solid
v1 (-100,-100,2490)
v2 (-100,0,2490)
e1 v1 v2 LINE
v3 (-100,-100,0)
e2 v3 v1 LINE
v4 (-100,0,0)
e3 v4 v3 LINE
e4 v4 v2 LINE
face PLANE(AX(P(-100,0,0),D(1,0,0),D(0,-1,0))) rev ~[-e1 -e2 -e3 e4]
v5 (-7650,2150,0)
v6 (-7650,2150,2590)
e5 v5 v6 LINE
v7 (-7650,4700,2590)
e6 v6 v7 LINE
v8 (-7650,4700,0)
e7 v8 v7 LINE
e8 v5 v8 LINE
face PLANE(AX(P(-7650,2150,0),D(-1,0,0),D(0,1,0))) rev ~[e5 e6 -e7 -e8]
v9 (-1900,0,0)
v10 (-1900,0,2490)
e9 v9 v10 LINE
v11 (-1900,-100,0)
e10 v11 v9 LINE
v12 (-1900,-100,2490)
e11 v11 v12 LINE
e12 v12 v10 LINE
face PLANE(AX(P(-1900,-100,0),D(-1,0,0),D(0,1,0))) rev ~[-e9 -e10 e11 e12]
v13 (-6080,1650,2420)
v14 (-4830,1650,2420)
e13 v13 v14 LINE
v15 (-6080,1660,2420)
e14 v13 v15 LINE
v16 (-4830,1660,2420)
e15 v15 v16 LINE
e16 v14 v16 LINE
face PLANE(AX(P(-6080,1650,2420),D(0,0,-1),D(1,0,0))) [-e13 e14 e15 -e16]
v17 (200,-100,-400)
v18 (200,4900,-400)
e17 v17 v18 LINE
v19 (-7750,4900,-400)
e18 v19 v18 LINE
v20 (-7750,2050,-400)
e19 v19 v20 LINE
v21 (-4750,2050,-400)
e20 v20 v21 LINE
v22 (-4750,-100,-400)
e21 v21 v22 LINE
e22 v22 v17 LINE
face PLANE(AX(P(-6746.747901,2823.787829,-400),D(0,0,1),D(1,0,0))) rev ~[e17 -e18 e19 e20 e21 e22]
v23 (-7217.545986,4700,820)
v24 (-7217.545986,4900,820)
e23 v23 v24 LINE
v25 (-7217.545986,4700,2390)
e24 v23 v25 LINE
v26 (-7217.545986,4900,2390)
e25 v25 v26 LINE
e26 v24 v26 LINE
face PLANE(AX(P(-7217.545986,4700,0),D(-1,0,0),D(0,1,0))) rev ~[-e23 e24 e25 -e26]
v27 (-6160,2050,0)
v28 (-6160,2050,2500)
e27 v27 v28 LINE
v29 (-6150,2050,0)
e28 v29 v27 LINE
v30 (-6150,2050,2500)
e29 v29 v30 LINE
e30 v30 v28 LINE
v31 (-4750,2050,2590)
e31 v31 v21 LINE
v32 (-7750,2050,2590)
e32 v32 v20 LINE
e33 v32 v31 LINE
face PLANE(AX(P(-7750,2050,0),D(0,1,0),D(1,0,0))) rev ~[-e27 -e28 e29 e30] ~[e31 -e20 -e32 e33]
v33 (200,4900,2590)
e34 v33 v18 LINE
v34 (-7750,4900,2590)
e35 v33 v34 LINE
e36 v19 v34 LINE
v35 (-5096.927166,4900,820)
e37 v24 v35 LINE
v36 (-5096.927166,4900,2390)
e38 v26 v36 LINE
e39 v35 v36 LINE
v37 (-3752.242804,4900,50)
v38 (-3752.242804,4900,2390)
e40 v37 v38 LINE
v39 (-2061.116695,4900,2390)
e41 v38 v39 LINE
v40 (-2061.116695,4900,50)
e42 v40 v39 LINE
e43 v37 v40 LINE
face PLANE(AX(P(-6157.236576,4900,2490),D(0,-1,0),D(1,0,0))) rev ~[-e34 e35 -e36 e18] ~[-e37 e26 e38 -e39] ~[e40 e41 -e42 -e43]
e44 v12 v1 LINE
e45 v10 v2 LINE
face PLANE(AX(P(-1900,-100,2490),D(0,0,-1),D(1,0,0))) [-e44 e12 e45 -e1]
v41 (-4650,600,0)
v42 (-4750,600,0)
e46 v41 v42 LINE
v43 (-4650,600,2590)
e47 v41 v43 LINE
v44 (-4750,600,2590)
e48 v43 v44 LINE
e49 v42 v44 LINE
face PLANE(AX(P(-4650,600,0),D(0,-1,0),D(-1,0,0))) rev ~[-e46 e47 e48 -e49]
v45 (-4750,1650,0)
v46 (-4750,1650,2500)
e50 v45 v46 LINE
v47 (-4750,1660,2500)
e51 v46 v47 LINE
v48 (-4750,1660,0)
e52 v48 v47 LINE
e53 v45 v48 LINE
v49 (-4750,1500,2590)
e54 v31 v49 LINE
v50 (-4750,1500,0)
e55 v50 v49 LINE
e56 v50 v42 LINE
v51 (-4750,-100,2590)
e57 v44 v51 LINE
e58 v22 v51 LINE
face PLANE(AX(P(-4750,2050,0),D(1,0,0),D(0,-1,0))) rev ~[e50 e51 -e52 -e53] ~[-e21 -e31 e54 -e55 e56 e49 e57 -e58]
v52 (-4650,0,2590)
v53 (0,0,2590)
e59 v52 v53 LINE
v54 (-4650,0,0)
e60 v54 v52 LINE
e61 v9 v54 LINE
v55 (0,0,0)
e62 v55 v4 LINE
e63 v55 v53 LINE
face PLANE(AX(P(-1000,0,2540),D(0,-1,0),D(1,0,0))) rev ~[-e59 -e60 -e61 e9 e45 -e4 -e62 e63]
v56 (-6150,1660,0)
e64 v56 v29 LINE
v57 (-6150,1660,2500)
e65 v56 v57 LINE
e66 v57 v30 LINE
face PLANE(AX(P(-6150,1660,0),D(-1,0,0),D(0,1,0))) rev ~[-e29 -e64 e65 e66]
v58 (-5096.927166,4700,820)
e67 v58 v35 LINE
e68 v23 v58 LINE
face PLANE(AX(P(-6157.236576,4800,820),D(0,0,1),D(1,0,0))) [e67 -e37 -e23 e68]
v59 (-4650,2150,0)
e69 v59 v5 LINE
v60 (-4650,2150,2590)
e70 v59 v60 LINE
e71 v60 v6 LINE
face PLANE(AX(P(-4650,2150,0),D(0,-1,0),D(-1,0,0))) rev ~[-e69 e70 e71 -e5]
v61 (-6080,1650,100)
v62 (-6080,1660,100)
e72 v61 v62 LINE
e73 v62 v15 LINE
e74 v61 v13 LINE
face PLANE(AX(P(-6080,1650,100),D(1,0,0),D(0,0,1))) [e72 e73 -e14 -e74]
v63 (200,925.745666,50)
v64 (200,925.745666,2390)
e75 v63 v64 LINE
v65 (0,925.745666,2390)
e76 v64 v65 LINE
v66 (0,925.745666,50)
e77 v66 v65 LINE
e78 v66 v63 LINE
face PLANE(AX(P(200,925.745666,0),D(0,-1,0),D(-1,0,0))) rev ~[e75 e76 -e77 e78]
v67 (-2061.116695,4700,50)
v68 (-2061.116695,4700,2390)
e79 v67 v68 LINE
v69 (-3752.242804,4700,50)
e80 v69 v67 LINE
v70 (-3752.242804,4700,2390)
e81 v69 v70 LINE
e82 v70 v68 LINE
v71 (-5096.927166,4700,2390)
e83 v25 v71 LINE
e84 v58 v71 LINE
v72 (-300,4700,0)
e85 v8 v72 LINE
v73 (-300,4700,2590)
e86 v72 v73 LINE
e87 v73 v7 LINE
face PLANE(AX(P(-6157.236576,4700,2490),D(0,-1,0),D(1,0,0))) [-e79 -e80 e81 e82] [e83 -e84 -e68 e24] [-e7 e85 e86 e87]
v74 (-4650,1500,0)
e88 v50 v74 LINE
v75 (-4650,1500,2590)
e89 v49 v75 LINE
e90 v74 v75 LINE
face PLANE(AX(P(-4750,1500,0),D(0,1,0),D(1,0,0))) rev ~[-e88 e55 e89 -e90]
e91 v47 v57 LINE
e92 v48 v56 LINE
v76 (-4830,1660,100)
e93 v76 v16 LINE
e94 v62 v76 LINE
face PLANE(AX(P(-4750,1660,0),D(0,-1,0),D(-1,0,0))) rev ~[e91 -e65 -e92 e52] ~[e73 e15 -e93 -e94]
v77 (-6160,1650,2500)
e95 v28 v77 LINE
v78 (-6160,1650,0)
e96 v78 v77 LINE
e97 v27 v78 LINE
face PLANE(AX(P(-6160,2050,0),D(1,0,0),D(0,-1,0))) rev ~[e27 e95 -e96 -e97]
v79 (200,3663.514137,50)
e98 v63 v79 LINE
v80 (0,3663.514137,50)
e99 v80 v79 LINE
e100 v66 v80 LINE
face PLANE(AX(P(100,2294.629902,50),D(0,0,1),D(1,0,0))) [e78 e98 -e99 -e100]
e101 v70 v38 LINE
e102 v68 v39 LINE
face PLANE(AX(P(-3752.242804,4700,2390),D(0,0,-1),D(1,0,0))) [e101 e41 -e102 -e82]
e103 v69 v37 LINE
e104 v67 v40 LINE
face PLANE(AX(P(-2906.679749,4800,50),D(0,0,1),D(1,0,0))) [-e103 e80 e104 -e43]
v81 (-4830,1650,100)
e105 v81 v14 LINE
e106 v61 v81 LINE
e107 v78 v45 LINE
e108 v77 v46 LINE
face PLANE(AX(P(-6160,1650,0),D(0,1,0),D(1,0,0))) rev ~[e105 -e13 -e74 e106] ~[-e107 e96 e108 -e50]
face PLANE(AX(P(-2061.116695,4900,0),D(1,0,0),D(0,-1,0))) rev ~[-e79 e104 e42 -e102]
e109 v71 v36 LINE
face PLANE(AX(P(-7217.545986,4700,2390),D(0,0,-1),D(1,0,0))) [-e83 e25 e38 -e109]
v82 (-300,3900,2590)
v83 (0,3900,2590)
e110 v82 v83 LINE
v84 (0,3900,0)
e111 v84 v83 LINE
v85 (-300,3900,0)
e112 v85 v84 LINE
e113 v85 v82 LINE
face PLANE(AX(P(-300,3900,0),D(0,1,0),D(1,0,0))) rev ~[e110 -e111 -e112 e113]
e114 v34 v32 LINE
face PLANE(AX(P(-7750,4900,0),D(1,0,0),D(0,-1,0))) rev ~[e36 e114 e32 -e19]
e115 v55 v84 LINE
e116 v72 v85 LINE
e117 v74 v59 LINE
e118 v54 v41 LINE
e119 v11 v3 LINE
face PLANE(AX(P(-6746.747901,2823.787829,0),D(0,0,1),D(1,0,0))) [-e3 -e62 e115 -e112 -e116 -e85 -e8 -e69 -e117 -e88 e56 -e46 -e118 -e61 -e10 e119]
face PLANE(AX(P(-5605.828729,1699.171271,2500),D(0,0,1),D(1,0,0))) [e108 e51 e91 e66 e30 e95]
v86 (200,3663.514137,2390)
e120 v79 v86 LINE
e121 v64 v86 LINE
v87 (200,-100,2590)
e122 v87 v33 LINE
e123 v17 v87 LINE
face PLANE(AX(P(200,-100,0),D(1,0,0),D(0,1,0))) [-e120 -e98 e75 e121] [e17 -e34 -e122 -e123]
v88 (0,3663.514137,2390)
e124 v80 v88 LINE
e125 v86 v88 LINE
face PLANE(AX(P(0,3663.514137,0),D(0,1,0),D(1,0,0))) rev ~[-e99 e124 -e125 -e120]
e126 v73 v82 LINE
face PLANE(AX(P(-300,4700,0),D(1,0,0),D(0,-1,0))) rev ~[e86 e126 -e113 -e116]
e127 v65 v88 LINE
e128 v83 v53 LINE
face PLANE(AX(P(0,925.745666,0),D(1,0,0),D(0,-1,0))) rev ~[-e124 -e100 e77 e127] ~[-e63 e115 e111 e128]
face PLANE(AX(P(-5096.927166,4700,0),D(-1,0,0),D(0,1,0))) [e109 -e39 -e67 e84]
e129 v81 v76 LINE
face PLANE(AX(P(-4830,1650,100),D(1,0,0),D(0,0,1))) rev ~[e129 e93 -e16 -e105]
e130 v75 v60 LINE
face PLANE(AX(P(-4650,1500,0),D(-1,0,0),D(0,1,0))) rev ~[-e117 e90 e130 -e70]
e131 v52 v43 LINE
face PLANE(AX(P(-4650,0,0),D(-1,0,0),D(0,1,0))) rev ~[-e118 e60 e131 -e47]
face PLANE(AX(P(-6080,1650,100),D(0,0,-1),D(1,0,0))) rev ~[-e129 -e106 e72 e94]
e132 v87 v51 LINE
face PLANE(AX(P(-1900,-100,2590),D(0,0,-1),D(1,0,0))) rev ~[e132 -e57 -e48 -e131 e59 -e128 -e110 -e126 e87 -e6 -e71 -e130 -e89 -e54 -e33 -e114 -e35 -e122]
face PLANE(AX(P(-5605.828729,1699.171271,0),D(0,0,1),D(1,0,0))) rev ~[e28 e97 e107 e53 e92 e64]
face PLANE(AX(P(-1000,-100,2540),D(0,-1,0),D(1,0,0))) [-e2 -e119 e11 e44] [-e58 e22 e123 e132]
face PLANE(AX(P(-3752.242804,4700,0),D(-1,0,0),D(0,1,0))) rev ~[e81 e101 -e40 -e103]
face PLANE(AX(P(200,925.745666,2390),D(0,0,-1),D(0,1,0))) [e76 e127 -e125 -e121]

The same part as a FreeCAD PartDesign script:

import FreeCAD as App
import Part
import Sketcher

V = App.Vector
Q = App.Units.Quantity

doc = App.newDocument("Part")
body = doc.addObject("PartDesign::Body", "Body")

# Sketch on XY plane
sketch1 = body.newObject("Sketcher::SketchObject", "Sketch")
sketch1.AttachmentSupport = (doc.getObject("XY_Plane"), [""])
sketch1.MapMode = "FlatFace"
sketch1.addGeometry([
    Part.LineSegment(V(200, -100, 0), V(200, 4900, 0)),  # 0
    Part.LineSegment(V(200, 4900, 0), V(-7750, 4900, 0)),  # 1
    Part.LineSegment(V(-7750, 4900, 0), V(-7750, 2050, 0)),  # 2
    Part.LineSegment(V(-7750, 2050, 0), V(-4750, 2050, 0)),  # 3
    Part.LineSegment(V(-4750, 2050, 0), V(-4750, -100, 0)),  # 4
    Part.LineSegment(V(-4750, -100, 0), V(200, -100, 0)),  # 5
], False)
sketch1.addConstraint([
    Sketcher.Constraint("Coincident", 0, 2, 1, 1),
    Sketcher.Constraint("Coincident", 1, 2, 2, 1),
    Sketcher.Constraint("Coincident", 2, 2, 3, 1),
    Sketcher.Constraint("Coincident", 3, 2, 4, 1),
    Sketcher.Constraint("Coincident", 4, 2, 5, 1),
    Sketcher.Constraint("Coincident", 5, 2, 0, 1),
    Sketcher.Constraint("Vertical", 0),
    Sketcher.Constraint("Horizontal", 1),
    Sketcher.Constraint("Vertical", 2),
    Sketcher.Constraint("Horizontal", 3),
    Sketcher.Constraint("Vertical", 4),
    Sketcher.Constraint("Horizontal", 5),
    Sketcher.Constraint("DistanceX", 1, 2, 1, 1, Q("7950 mm")),
    Sketcher.Constraint("DistanceX", 3, 1, 3, 2, Q("3000 mm")),
    Sketcher.Constraint("DistanceY", 0, 1, 0, 2, Q("5000 mm")),
    Sketcher.Constraint("DistanceY", 2, 2, 2, 1, Q("2850 mm")),
    Sketcher.Constraint("DistanceX", -1, 1, 0, 2, Q("200 mm")),
    Sketcher.Constraint("DistanceY", -1, 1, 0, 2, Q("4900 mm")),
])
pad1 = body.newObject("PartDesign::Pad", "Pad")
pad1.Profile = sketch1
pad1.Length = 400
pad1.Reversed = True

# Sketch on XY plane
sketch2 = body.newObject("Sketcher::SketchObject", "Sketch001")
sketch2.AttachmentSupport = (doc.getObject("XY_Plane"), [""])
sketch2.MapMode = "FlatFace"
sketch2.addGeometry([
    Part.LineSegment(V(-4750, 1500, 0), V(-4650, 1500, 0)),  # 0
    Part.LineSegment(V(-4650, 1500, 0), V(-4650, 2150, 0)),  # 1
    Part.LineSegment(V(-4650, 2150, 0), V(-7650, 2150, 0)),  # 2
    Part.LineSegment(V(-7650, 2150, 0), V(-7650, 4700, 0)),  # 3
    Part.LineSegment(V(-7650, 4700, 0), V(-7217.545986, 4700, 0)),  # 4
    Part.LineSegment(V(-7217.545986, 4700, 0), V(-7217.545986, 4900, 0)),  # 5
    Part.LineSegment(V(-7217.545986, 4900, 0), V(-7750, 4900, 0)),  # 6
    Part.LineSegment(V(-7750, 4900, 0), V(-7750, 2050, 0)),  # 7
    Part.LineSegment(V(-7750, 2050, 0), V(-4750, 2050, 0)),  # 8
    Part.LineSegment(V(-4750, 2050, 0), V(-4750, 1500, 0)),  # 9
    Part.LineSegment(V(-5096.927166, 4900, 0), V(-5096.927166, 4700, 0)),  # 10
    Part.LineSegment(V(-5096.927166, 4700, 0), V(-3752.242804, 4700, 0)),  # 11
    Part.LineSegment(V(-3752.242804, 4700, 0), V(-3752.242804, 4900, 0)),  # 12
    Part.LineSegment(V(-3752.242804, 4900, 0), V(-5096.927166, 4900, 0)),  # 13
    Part.LineSegment(V(0, 3900, 0), V(0, 3663.514137, 0)),  # 14
    Part.LineSegment(V(0, 3663.514137, 0), V(200, 3663.514137, 0)),  # 15
    Part.LineSegment(V(200, 3663.514137, 0), V(200, 4900, 0)),  # 16
    Part.LineSegment(V(200, 4900, 0), V(-2061.116695, 4900, 0)),  # 17
    Part.LineSegment(V(-2061.116695, 4900, 0), V(-2061.116695, 4700, 0)),  # 18
    Part.LineSegment(V(-2061.116695, 4700, 0), V(-300, 4700, 0)),  # 19
    Part.LineSegment(V(-300, 4700, 0), V(-300, 3900, 0)),  # 20
    Part.LineSegment(V(-300, 3900, 0), V(0, 3900, 0)),  # 21
    Part.LineSegment(V(0, 925.745666, 0), V(0, 0, 0)),  # 22
    Part.LineSegment(V(0, 0, 0), V(-100, 0, 0)),  # 23
    Part.LineSegment(V(-100, 0, 0), V(-100, -100, 0)),  # 24
    Part.LineSegment(V(-100, -100, 0), V(200, -100, 0)),  # 25
    Part.LineSegment(V(200, -100, 0), V(200, 925.745666, 0)),  # 26
    Part.LineSegment(V(200, 925.745666, 0), V(0, 925.745666, 0)),  # 27
    Part.LineSegment(V(-1900, -100, 0), V(-1900, 0, 0)),  # 28
    Part.LineSegment(V(-1900, 0, 0), V(-4650, 0, 0)),  # 29
    Part.LineSegment(V(-4650, 0, 0), V(-4650, 600, 0)),  # 30
    Part.LineSegment(V(-4650, 600, 0), V(-4750, 600, 0)),  # 31
    Part.LineSegment(V(-4750, 600, 0), V(-4750, -100, 0)),  # 32
    Part.LineSegment(V(-4750, -100, 0), V(-1900, -100, 0)),  # 33
], False)
sketch2.addConstraint([
    Sketcher.Constraint("Coincident", 0, 2, 1, 1),
    Sketcher.Constraint("Coincident", 1, 2, 2, 1),
    Sketcher.Constraint("Coincident", 2, 2, 3, 1),
    Sketcher.Constraint("Coincident", 3, 2, 4, 1),
    Sketcher.Constraint("Coincident", 4, 2, 5, 1),
    Sketcher.Constraint("Coincident", 5, 2, 6, 1),
    Sketcher.Constraint("Coincident", 6, 2, 7, 1),
    Sketcher.Constraint("Coincident", 7, 2, 8, 1),
    Sketcher.Constraint("Coincident", 8, 2, 9, 1),
    Sketcher.Constraint("Coincident", 9, 2, 0, 1),
    Sketcher.Constraint("Coincident", 10, 2, 11, 1),
    Sketcher.Constraint("Coincident", 11, 2, 12, 1),
    Sketcher.Constraint("Coincident", 12, 2, 13, 1),
    Sketcher.Constraint("Coincident", 13, 2, 10, 1),
    Sketcher.Constraint("Coincident", 14, 2, 15, 1),
    Sketcher.Constraint("Coincident", 15, 2, 16, 1),
    Sketcher.Constraint("Coincident", 16, 2, 17, 1),
    Sketcher.Constraint("Coincident", 17, 2, 18, 1),
    Sketcher.Constraint("Coincident", 18, 2, 19, 1),
    Sketcher.Constraint("Coincident", 19, 2, 20, 1),
    Sketcher.Constraint("Coincident", 20, 2, 21, 1),
    Sketcher.Constraint("Coincident", 21, 2, 14, 1),
    Sketcher.Constraint("Coincident", 22, 2, 23, 1),
    Sketcher.Constraint("Coincident", 23, 2, 24, 1),
    Sketcher.Constraint("Coincident", 24, 2, 25, 1),
    Sketcher.Constraint("Coincident", 25, 2, 26, 1),
    Sketcher.Constraint("Coincident", 26, 2, 27, 1),
    Sketcher.Constraint("Coincident", 27, 2, 22, 1),
    Sketcher.Constraint("Coincident", 28, 2, 29, 1),
    Sketcher.Constraint("Coincident", 29, 2, 30, 1),
    Sketcher.Constraint("Coincident", 30, 2, 31, 1),
    Sketcher.Constraint("Coincident", 31, 2, 32, 1),
    Sketcher.Constraint("Coincident", 32, 2, 33, 1),
    Sketcher.Constraint("Coincident", 33, 2, 28, 1),
    Sketcher.Constraint("Horizontal", 0),
    Sketcher.Constraint("Vertical", 1),
    Sketcher.Constraint("Horizontal", 2),
    Sketcher.Constraint("Vertical", 3),
    Sketcher.Constraint("Horizontal", 4),
    Sketcher.Constraint("Vertical", 5),
    Sketcher.Constraint("Horizontal", 6),
    Sketcher.Constraint("Vertical", 7),
    Sketcher.Constraint("Horizontal", 8),
    Sketcher.Constraint("Vertical", 9),
    Sketcher.Constraint("Vertical", 10),
    Sketcher.Constraint("Horizontal", 11),
    Sketcher.Constraint("Vertical", 12),
    Sketcher.Constraint("Horizontal", 13),
    Sketcher.Constraint("Vertical", 14),
    Sketcher.Constraint("Horizontal", 15),
    Sketcher.Constraint("Vertical", 16),
    Sketcher.Constraint("Horizontal", 17),
    Sketcher.Constraint("Vertical", 18),
    Sketcher.Constraint("Horizontal", 19),
    Sketcher.Constraint("Vertical", 20),
    Sketcher.Constraint("Horizontal", 21),
    Sketcher.Constraint("Vertical", 22),
    Sketcher.Constraint("Horizontal", 23),
    Sketcher.Constraint("Vertical", 24),
    Sketcher.Constraint("Horizontal", 25),
    Sketcher.Constraint("Vertical", 26),
    Sketcher.Constraint("Horizontal", 27),
    Sketcher.Constraint("Vertical", 28),
    Sketcher.Constraint("Horizontal", 29),
    Sketcher.Constraint("Vertical", 30),
    Sketcher.Constraint("Horizontal", 31),
    Sketcher.Constraint("Vertical", 32),
    Sketcher.Constraint("Horizontal", 33),
    Sketcher.Constraint("Coincident", 22, 2, -1, 1),
    Sketcher.Constraint("PointOnObject", 14, 2, -2),
    Sketcher.Constraint("PointOnObject", 28, 2, -1),
    Sketcher.Constraint("Horizontal", 4, 2, 10, 2),
    Sketcher.Constraint("Horizontal", 6, 2, 12, 2),
    Sketcher.Constraint("Horizontal", 13, 2, 16, 2),
    Sketcher.Constraint("Horizontal", 11, 2, 18, 2),
    Sketcher.Constraint("Horizontal", 25, 2, 32, 2),
    Sketcher.Constraint("Vertical", 16, 2, 25, 2),
    Sketcher.Constraint("Vertical", 1, 2, 29, 2),
    Sketcher.Constraint("Vertical", 9, 2, 31, 2),
    Sketcher.Constraint("Equal", 2, 8),
    Sketcher.Constraint("Equal", 0, 23),
    Sketcher.Constraint("Equal", 21, 25),
    Sketcher.Constraint("Equal", 27, 5),
    Sketcher.Constraint("Equal", 33, 7),
    Sketcher.Constraint("Equal", 31, 24),
    Sketcher.Constraint("DistanceX", 0, 1, 0, 2, Q("100 mm")),
    Sketcher.Constraint("DistanceX", 2, 2, 2, 1, Q("3000 mm")),
    Sketcher.Constraint("DistanceX", 15, 1, 15, 2, Q("200 mm")),
    Sketcher.Constraint("DistanceX", 29, 2, 29, 1, Q("2750 mm")),
    Sketcher.Constraint("DistanceY", 1, 1, 1, 2, Q("650 mm")),
    Sketcher.Constraint("DistanceY", 3, 1, 3, 2, Q("2550 mm")),
    Sketcher.Constraint("DistanceY", 20, 2, 20, 1, Q("800 mm")),
    Sketcher.Constraint("DistanceY", 30, 1, 30, 2, Q("600 mm")),
    Sketcher.Constraint("DistanceX", 0, 2, -1, 1, Q("4650 mm")),
    Sketcher.Constraint("DistanceY", -1, 1, 0, 2, Q("1500 mm")),
    Sketcher.Constraint("DistanceX", 4, 1, 4, 2, Q("432.454014 mm")),
    Sketcher.Constraint("DistanceX", 11, 1, 11, 2, Q("1344.684362 mm")),
    Sketcher.Constraint("DistanceX", 17, 2, 17, 1, Q("2261.116695 mm")),
    Sketcher.Constraint("DistanceY", 14, 2, 14, 1, Q("236.485863 mm")),
    Sketcher.Constraint("DistanceY", 22, 2, 22, 1, Q("925.745666 mm")),
    Sketcher.Constraint("DistanceX", 4, 2, 10, 2, Q("2120.61882 mm")),
])
pad2 = body.newObject("PartDesign::Pad", "Pad001")
pad2.Profile = sketch2
pad2.Length = 2590

# Sketch on XY plane
sketch3 = body.newObject("Sketcher::SketchObject", "Sketch002")
sketch3.AttachmentSupport = (doc.getObject("XY_Plane"), [""])
sketch3.MapMode = "FlatFace"
sketch3.addGeometry([
    Part.LineSegment(V(-3752.242804, 4900, 0), V(-3752.242804, 4700, 0)),  # 0
    Part.LineSegment(V(-3752.242804, 4700, 0), V(-2061.116695, 4700, 0)),  # 1
    Part.LineSegment(V(-2061.116695, 4700, 0), V(-2061.116695, 4900, 0)),  # 2
    Part.LineSegment(V(-2061.116695, 4900, 0), V(-3752.242804, 4900, 0)),  # 3
    Part.LineSegment(V(0, 3663.514137, 0), V(0, 925.745666, 0)),  # 4
    Part.LineSegment(V(0, 925.745666, 0), V(200, 925.745666, 0)),  # 5
    Part.LineSegment(V(200, 925.745666, 0), V(200, 3663.514137, 0)),  # 6
    Part.LineSegment(V(200, 3663.514137, 0), V(0, 3663.514137, 0)),  # 7
], False)
sketch3.addConstraint([
    Sketcher.Constraint("Coincident", 0, 2, 1, 1),
    Sketcher.Constraint("Coincident", 1, 2, 2, 1),
    Sketcher.Constraint("Coincident", 2, 2, 3, 1),
    Sketcher.Constraint("Coincident", 3, 2, 0, 1),
    Sketcher.Constraint("Coincident", 4, 2, 5, 1),
    Sketcher.Constraint("Coincident", 5, 2, 6, 1),
    Sketcher.Constraint("Coincident", 6, 2, 7, 1),
    Sketcher.Constraint("Coincident", 7, 2, 4, 1),
    Sketcher.Constraint("Vertical", 0),
    Sketcher.Constraint("Horizontal", 1),
    Sketcher.Constraint("Vertical", 2),
    Sketcher.Constraint("Horizontal", 3),
    Sketcher.Constraint("Vertical", 4),
    Sketcher.Constraint("Horizontal", 5),
    Sketcher.Constraint("Vertical", 6),
    Sketcher.Constraint("Horizontal", 7),
    Sketcher.Constraint("PointOnObject", 4, 2, -2),
    Sketcher.Constraint("Equal", 7, 0),
    Sketcher.Constraint("DistanceX", 5, 1, 5, 2, Q("200 mm")),
    Sketcher.Constraint("DistanceY", -1, 1, 0, 2, Q("4700 mm")),
    Sketcher.Constraint("DistanceX", 1, 1, 1, 2, Q("1691.126108 mm")),
    Sketcher.Constraint("DistanceY", 4, 2, 4, 1, Q("2737.768471 mm")),
    Sketcher.Constraint("DistanceX", 0, 2, -1, 1, Q("3752.242804 mm")),
    Sketcher.Constraint("DistanceY", -1, 1, 4, 2, Q("925.745666 mm")),
])
pad3 = body.newObject("PartDesign::Pad", "Pad002")
pad3.Profile = sketch3
pad3.Length = 50

# Sketch on XY plane
sketch4 = body.newObject("Sketcher::SketchObject", "Sketch003")
sketch4.AttachmentSupport = (doc.getObject("XY_Plane"), [""])
sketch4.MapMode = "FlatFace"
sketch4.addGeometry([
    Part.LineSegment(V(-7217.545986, 4900, 0), V(-7217.545986, 4700, 0)),
    Part.LineSegment(V(-7217.545986, 4700, 0), V(-5096.927166, 4700, 0)),
    Part.LineSegment(V(-5096.927166, 4700, 0), V(-5096.927166, 4900, 0)),
    Part.LineSegment(V(-5096.927166, 4900, 0), V(-7217.545986, 4900, 0)),
], False)
sketch4.addConstraint([
    Sketcher.Constraint("Coincident", 0, 2, 1, 1),
    Sketcher.Constraint("Coincident", 1, 2, 2, 1),
    Sketcher.Constraint("Coincident", 2, 2, 3, 1),
    Sketcher.Constraint("Coincident", 3, 2, 0, 1),
    Sketcher.Constraint("Vertical", 0),
    Sketcher.Constraint("Horizontal", 1),
    Sketcher.Constraint("Vertical", 2),
    Sketcher.Constraint("Horizontal", 3),
    Sketcher.Constraint("DistanceY", 0, 2, 0, 1, Q("200 mm")),
    Sketcher.Constraint("DistanceY", -1, 1, 0, 2, Q("4700 mm")),
    Sketcher.Constraint("DistanceX", 1, 1, 1, 2, Q("2120.61882 mm")),
    Sketcher.Constraint("DistanceX", 0, 2, -1, 1, Q("7217.545986 mm")),
])
pad4 = body.newObject("PartDesign::Pad", "Pad003")
pad4.Profile = sketch4
pad4.Length = 820

# Sketch on XY plane
sketch5 = body.newObject("Sketcher::SketchObject", "Sketch004")
sketch5.AttachmentSupport = (doc.getObject("XY_Plane"), [""])
sketch5.MapMode = "FlatFace"
sketch5.addGeometry([
    Part.LineSegment(V(-6160, 1650, 0), V(-4750, 1650, 0)),  # 0
    Part.LineSegment(V(-4750, 1650, 0), V(-4750, 1660, 0)),  # 1
    Part.LineSegment(V(-4750, 1660, 0), V(-6150, 1660, 0)),  # 2
    Part.LineSegment(V(-6150, 1660, 0), V(-6150, 2050, 0)),  # 3
    Part.LineSegment(V(-6150, 2050, 0), V(-6160, 2050, 0)),  # 4
    Part.LineSegment(V(-6160, 2050, 0), V(-6160, 1650, 0)),  # 5
], False)
sketch5.addConstraint([
    Sketcher.Constraint("Coincident", 0, 2, 1, 1),
    Sketcher.Constraint("Coincident", 1, 2, 2, 1),
    Sketcher.Constraint("Coincident", 2, 2, 3, 1),
    Sketcher.Constraint("Coincident", 3, 2, 4, 1),
    Sketcher.Constraint("Coincident", 4, 2, 5, 1),
    Sketcher.Constraint("Coincident", 5, 2, 0, 1),
    Sketcher.Constraint("Horizontal", 0),
    Sketcher.Constraint("Vertical", 1),
    Sketcher.Constraint("Horizontal", 2),
    Sketcher.Constraint("Vertical", 3),
    Sketcher.Constraint("Horizontal", 4),
    Sketcher.Constraint("Vertical", 5),
    Sketcher.Constraint("Equal", 4, 1),
    Sketcher.Constraint("DistanceX", 0, 1, 0, 2, Q("1410 mm")),
    Sketcher.Constraint("DistanceX", 2, 2, 2, 1, Q("1400 mm")),
    Sketcher.Constraint("DistanceY", 3, 1, 3, 2, Q("390 mm")),
    Sketcher.Constraint("DistanceX", 0, 2, -1, 1, Q("4750 mm")),
    Sketcher.Constraint("DistanceY", -1, 1, 0, 2, Q("1650 mm")),
])
pad5 = body.newObject("PartDesign::Pad", "Pad004")
pad5.Profile = sketch5
pad5.Length = 2500

# Sketch on XZ plane
sketch6 = body.newObject("Sketcher::SketchObject", "Sketch005")
sketch6.AttachmentSupport = (doc.getObject("XZ_Plane"), [""])
sketch6.MapMode = "FlatFace"
sketch6.AttachmentOffset = App.Placement(V(0, 0, -1650), App.Rotation())
sketch6.addGeometry([
    Part.LineSegment(V(-6080, 2420, 0), V(-6080, 100, 0)),
    Part.LineSegment(V(-6080, 100, 0), V(-4830, 100, 0)),
    Part.LineSegment(V(-4830, 100, 0), V(-4830, 2420, 0)),
    Part.LineSegment(V(-4830, 2420, 0), V(-6080, 2420, 0)),
], False)
sketch6.addConstraint([
    Sketcher.Constraint("Coincident", 0, 2, 1, 1),
    Sketcher.Constraint("Coincident", 1, 2, 2, 1),
    Sketcher.Constraint("Coincident", 2, 2, 3, 1),
    Sketcher.Constraint("Coincident", 3, 2, 0, 1),
    Sketcher.Constraint("Vertical", 0),
    Sketcher.Constraint("Horizontal", 1),
    Sketcher.Constraint("Vertical", 2),
    Sketcher.Constraint("Horizontal", 3),
    Sketcher.Constraint("DistanceX", 1, 1, 1, 2, Q("1250 mm")),
    Sketcher.Constraint("DistanceY", 0, 2, 0, 1, Q("2320 mm")),
    Sketcher.Constraint("DistanceX", 0, 2, -1, 1, Q("6080 mm")),
    Sketcher.Constraint("DistanceY", -1, 1, 0, 2, Q("100 mm")),
])
pocket1 = body.newObject("PartDesign::Pocket", "Pocket")
pocket1.Profile = sketch6
pocket1.Length = 25

# Sketch on XZ plane
sketch7 = body.newObject("Sketcher::SketchObject", "Sketch006")
sketch7.AttachmentSupport = (doc.getObject("XZ_Plane"), [""])
sketch7.MapMode = "FlatFace"
sketch7.AttachmentOffset = App.Placement(V(0, 0, -4700), App.Rotation())
sketch7.addGeometry([
    Part.LineSegment(V(-7217.545986, 2590, 0), V(-7217.545986, 2390, 0)),  # 0
    Part.LineSegment(V(-7217.545986, 2390, 0), V(-5096.927166, 2390, 0)),  # 1
    Part.LineSegment(V(-5096.927166, 2390, 0), V(-5096.927166, 2590, 0)),  # 2
    Part.LineSegment(V(-5096.927166, 2590, 0), V(-7217.545986, 2590, 0)),  # 3
    Part.LineSegment(V(-3752.242804, 2590, 0), V(-3752.242804, 2390, 0)),  # 4
    Part.LineSegment(V(-3752.242804, 2390, 0), V(-2061.116695, 2390, 0)),  # 5
    Part.LineSegment(V(-2061.116695, 2390, 0), V(-2061.116695, 2590, 0)),  # 6
    Part.LineSegment(V(-2061.116695, 2590, 0), V(-3752.242804, 2590, 0)),  # 7
], False)
sketch7.addConstraint([
    Sketcher.Constraint("Coincident", 0, 2, 1, 1),
    Sketcher.Constraint("Coincident", 1, 2, 2, 1),
    Sketcher.Constraint("Coincident", 2, 2, 3, 1),
    Sketcher.Constraint("Coincident", 3, 2, 0, 1),
    Sketcher.Constraint("Coincident", 4, 2, 5, 1),
    Sketcher.Constraint("Coincident", 5, 2, 6, 1),
    Sketcher.Constraint("Coincident", 6, 2, 7, 1),
    Sketcher.Constraint("Coincident", 7, 2, 4, 1),
    Sketcher.Constraint("Vertical", 0),
    Sketcher.Constraint("Horizontal", 1),
    Sketcher.Constraint("Vertical", 2),
    Sketcher.Constraint("Horizontal", 3),
    Sketcher.Constraint("Vertical", 4),
    Sketcher.Constraint("Horizontal", 5),
    Sketcher.Constraint("Vertical", 6),
    Sketcher.Constraint("Horizontal", 7),
    Sketcher.Constraint("Horizontal", 1, 2, 4, 2),
    Sketcher.Constraint("Horizontal", 3, 2, 6, 2),
    Sketcher.Constraint("DistanceY", 0, 2, 0, 1, Q("200 mm")),
    Sketcher.Constraint("DistanceY", -1, 1, 0, 2, Q("2390 mm")),
    Sketcher.Constraint("DistanceX", 1, 1, 1, 2, Q("2120.61882 mm")),
    Sketcher.Constraint("DistanceX", 5, 1, 5, 2, Q("1691.126108 mm")),
    Sketcher.Constraint("DistanceX", 1, 2, 5, 2, Q("3035.810471 mm")),
    Sketcher.Constraint("DistanceX", 0, 2, -1, 1, Q("7217.545986 mm")),
])
pad6 = body.newObject("PartDesign::Pad", "Pad005")
pad6.Profile = sketch7
pad6.Length = 200
pad6.Reversed = True

# Sketch on XZ plane
sketch8 = body.newObject("Sketcher::SketchObject", "Sketch007")
sketch8.AttachmentSupport = (doc.getObject("XZ_Plane"), [""])
sketch8.MapMode = "FlatFace"
sketch8.AttachmentOffset = App.Placement(V(0, 0, 100), App.Rotation())
sketch8.addGeometry([
    Part.LineSegment(V(-1900, 2590, 0), V(-1900, 2490, 0)),
    Part.LineSegment(V(-1900, 2490, 0), V(-100, 2490, 0)),
    Part.LineSegment(V(-100, 2490, 0), V(-100, 2590, 0)),
    Part.LineSegment(V(-100, 2590, 0), V(-1900, 2590, 0)),
], False)
sketch8.addConstraint([
    Sketcher.Constraint("Coincident", 0, 2, 1, 1),
    Sketcher.Constraint("Coincident", 1, 2, 2, 1),
    Sketcher.Constraint("Coincident", 2, 2, 3, 1),
    Sketcher.Constraint("Coincident", 3, 2, 0, 1),
    Sketcher.Constraint("Vertical", 0),
    Sketcher.Constraint("Horizontal", 1),
    Sketcher.Constraint("Vertical", 2),
    Sketcher.Constraint("Horizontal", 3),
    Sketcher.Constraint("DistanceX", 1, 1, 1, 2, Q("1800 mm")),
    Sketcher.Constraint("DistanceY", 0, 2, 0, 1, Q("100 mm")),
    Sketcher.Constraint("DistanceX", 0, 2, -1, 1, Q("1900 mm")),
    Sketcher.Constraint("DistanceY", -1, 1, 0, 2, Q("2490 mm")),
])
pad7 = body.newObject("PartDesign::Pad", "Pad006")
pad7.Profile = sketch8
pad7.Length = 100
pad7.Reversed = True

# Sketch on YZ plane
sketch9 = body.newObject("Sketcher::SketchObject", "Sketch008")
sketch9.AttachmentSupport = (doc.getObject("YZ_Plane"), [""])
sketch9.MapMode = "FlatFace"
sketch9.AttachmentOffset = App.Placement(V(0, 0, 200), App.Rotation())
sketch9.addGeometry([
    Part.LineSegment(V(-100, -400, 0), V(4900, -400, 0)),  # 0
    Part.LineSegment(V(4900, -400, 0), V(4900, 2590, 0)),  # 1
    Part.LineSegment(V(4900, 2590, 0), V(-100, 2590, 0)),  # 2
    Part.LineSegment(V(-100, 2590, 0), V(-100, -400, 0)),  # 3
    Part.LineSegment(V(3663.514137, 2390, 0), V(3663.514137, 50, 0)),  # 4
    Part.LineSegment(V(3663.514137, 50, 0), V(925.745666, 50, 0)),  # 5
    Part.LineSegment(V(925.745666, 50, 0), V(925.745666, 2390, 0)),  # 6
    Part.LineSegment(V(925.745666, 2390, 0), V(3663.514137, 2390, 0)),  # 7
], False)
sketch9.addConstraint([
    Sketcher.Constraint("Coincident", 0, 2, 1, 1),
    Sketcher.Constraint("Coincident", 1, 2, 2, 1),
    Sketcher.Constraint("Coincident", 2, 2, 3, 1),
    Sketcher.Constraint("Coincident", 3, 2, 0, 1),
    Sketcher.Constraint("Coincident", 4, 2, 5, 1),
    Sketcher.Constraint("Coincident", 5, 2, 6, 1),
    Sketcher.Constraint("Coincident", 6, 2, 7, 1),
    Sketcher.Constraint("Coincident", 7, 2, 4, 1),
    Sketcher.Constraint("Horizontal", 0),
    Sketcher.Constraint("Vertical", 1),
    Sketcher.Constraint("Horizontal", 2),
    Sketcher.Constraint("Vertical", 3),
    Sketcher.Constraint("Vertical", 4),
    Sketcher.Constraint("Horizontal", 5),
    Sketcher.Constraint("Vertical", 6),
    Sketcher.Constraint("Horizontal", 7),
    Sketcher.Constraint("DistanceX", 0, 1, 0, 2, Q("5000 mm")),
    Sketcher.Constraint("DistanceY", 1, 1, 1, 2, Q("2990 mm")),
    Sketcher.Constraint("DistanceY", 4, 2, 4, 1, Q("2340 mm")),
    Sketcher.Constraint("DistanceX", -1, 1, 0, 2, Q("4900 mm")),
    Sketcher.Constraint("DistanceY", 0, 2, -1, 1, Q("400 mm")),
    Sketcher.Constraint("DistanceY", -1, 1, 4, 2, Q("50 mm")),
    Sketcher.Constraint("DistanceX", 5, 2, 5, 1, Q("2737.768471 mm")),
    Sketcher.Constraint("DistanceX", -1, 1, 4, 2, Q("3663.514137 mm")),
])
pad8 = body.newObject("PartDesign::Pad", "Pad007")
pad8.Profile = sketch9
pad8.Length = 200
pad8.Reversed = True

doc.recompute()
